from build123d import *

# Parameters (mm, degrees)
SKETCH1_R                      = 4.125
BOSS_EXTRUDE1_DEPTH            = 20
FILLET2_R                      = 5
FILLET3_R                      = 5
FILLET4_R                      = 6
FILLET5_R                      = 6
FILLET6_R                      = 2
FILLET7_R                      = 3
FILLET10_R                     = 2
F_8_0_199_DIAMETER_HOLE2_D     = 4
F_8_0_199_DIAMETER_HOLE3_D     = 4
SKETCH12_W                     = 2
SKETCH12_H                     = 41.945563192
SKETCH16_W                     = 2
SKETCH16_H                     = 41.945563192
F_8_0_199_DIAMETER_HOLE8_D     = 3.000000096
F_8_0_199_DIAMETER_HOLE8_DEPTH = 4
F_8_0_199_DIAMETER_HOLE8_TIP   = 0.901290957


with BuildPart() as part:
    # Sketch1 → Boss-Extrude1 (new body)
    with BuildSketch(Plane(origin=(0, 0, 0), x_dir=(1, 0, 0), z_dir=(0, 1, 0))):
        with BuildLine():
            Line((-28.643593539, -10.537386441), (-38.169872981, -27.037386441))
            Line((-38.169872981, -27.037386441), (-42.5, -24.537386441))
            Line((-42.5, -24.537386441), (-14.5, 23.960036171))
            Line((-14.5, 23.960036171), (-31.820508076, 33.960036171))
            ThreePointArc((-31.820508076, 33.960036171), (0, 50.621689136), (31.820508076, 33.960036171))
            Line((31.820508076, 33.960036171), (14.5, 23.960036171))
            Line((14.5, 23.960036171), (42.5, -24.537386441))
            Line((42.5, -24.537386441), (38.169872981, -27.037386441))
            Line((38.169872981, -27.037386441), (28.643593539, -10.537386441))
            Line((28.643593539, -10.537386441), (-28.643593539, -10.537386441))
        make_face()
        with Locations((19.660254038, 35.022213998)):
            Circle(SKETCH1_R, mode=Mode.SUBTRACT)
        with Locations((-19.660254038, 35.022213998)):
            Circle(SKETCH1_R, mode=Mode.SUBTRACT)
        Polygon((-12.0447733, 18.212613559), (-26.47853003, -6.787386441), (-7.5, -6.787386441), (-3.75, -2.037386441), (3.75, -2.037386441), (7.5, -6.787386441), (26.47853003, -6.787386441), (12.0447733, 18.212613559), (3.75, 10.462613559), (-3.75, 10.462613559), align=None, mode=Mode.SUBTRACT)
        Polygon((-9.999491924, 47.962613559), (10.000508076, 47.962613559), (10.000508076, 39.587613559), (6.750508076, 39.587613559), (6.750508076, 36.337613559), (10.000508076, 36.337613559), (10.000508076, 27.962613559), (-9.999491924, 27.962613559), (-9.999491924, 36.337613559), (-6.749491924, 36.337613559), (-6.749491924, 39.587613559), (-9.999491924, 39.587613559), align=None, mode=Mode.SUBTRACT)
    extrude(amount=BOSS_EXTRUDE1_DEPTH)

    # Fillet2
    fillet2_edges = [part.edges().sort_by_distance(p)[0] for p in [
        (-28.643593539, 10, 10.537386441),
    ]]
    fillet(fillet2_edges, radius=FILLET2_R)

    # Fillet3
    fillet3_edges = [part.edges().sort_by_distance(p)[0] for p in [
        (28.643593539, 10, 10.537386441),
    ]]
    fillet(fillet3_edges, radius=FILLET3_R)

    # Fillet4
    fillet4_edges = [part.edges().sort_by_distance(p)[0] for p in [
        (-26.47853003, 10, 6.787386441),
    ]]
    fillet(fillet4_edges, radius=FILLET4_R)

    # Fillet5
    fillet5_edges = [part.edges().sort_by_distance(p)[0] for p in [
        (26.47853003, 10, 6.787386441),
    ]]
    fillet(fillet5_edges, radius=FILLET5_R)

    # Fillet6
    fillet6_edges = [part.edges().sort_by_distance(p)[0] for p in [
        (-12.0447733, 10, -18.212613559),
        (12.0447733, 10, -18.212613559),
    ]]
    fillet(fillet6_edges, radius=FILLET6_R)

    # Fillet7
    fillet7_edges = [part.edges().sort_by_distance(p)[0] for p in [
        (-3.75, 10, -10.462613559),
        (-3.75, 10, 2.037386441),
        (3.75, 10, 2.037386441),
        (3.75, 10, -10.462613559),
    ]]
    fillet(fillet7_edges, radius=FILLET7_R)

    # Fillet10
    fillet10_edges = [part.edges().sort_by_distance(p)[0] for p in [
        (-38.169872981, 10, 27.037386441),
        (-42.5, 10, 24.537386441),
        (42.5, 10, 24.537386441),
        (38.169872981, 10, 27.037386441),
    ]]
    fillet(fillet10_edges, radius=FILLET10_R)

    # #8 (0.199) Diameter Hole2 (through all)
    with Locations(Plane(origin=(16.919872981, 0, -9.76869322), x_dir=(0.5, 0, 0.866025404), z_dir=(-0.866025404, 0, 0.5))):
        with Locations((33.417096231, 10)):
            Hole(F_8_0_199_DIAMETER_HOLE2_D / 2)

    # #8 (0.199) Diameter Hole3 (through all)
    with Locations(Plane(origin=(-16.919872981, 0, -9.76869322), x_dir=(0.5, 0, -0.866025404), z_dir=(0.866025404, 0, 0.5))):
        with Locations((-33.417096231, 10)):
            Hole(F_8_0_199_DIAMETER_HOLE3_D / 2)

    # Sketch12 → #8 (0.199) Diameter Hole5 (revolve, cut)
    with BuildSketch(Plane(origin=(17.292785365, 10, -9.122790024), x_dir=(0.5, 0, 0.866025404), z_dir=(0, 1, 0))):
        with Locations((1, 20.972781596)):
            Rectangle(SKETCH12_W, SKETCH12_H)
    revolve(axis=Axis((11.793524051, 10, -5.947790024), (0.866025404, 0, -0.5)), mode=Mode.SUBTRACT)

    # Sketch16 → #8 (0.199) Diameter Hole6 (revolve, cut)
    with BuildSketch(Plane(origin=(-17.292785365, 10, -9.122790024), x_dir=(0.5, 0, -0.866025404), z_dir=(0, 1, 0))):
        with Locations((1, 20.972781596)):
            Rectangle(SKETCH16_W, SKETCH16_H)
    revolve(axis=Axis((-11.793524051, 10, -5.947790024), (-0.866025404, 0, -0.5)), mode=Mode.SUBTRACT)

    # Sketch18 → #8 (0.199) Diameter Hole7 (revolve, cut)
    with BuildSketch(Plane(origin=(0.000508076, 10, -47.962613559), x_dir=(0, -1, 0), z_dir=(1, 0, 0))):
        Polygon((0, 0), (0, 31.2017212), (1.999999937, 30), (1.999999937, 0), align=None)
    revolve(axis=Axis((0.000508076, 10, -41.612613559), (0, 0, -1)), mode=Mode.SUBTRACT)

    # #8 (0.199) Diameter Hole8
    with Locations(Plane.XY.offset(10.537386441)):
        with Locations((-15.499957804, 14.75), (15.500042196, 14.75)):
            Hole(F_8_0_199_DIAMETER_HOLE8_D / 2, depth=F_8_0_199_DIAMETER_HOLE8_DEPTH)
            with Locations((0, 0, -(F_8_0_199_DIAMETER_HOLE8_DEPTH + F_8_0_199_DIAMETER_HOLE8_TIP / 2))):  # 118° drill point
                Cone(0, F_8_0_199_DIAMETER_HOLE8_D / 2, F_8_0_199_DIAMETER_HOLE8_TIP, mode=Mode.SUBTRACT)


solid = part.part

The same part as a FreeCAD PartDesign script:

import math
import FreeCAD as App
import Part
import Sketcher

V = App.Vector
Q = App.Units.Quantity


def edges_at(feature, points):
    """Names of the edges that pass closest to the given points."""
    edges = feature.Shape.Edges
    near = lambda p: min(range(len(edges)), key=lambda i: edges[i].distToShape(Part.Vertex(*p))[0])
    return sorted({f"Edge{near(p) + 1}" for p in points})


def add_polygon(sketch, points):
    """Adds a closed chain of lines whose ends are joined by coincident constraints."""
    first, n = sketch.GeometryCount, len(points)
    for a, b in zip(points, points[1:] + points[:1]):
        sketch.addGeometry(Part.LineSegment(App.Vector(*a, 0), App.Vector(*b, 0)), False)
    for i in range(n):
        sketch.addConstraint(Sketcher.Constraint("Coincident", first + i, 2, first + (i + 1) % n, 1))

doc = App.newDocument("Part")
body = doc.addObject("PartDesign::Body", "Body")

sketch1 = body.newObject("Sketcher::SketchObject", "Sketch")
sketch1.AttachmentSupport = (doc.getObject("XZ_Plane"), [""])
sketch1.MapMode = "FlatFace"
sketch1.addGeometry(Part.LineSegment(V(-38.2, 27, 0), V(-28.6, 10.5, 0)), False)
sketch1.addGeometry(Part.LineSegment(V(-28.6, 10.5, 0), V(28.6, 10.5, 0)), False)
sketch1.addGeometry(Part.LineSegment(V(28.6, 10.5, 0), V(38.2, 27, 0)), False)
sketch1.addGeometry(Part.LineSegment(V(38.2, 27, 0), V(42.5, 24.5, 0)), False)
sketch1.addGeometry(Part.LineSegment(V(42.5, 24.5, 0), V(14.5, -24, 0)), False)
sketch1.addGeometry(Part.LineSegment(V(14.5, -24, 0), V(31.8, -34, 0)), False)
sketch1.addGeometry(Part.ArcOfCircle(Part.Circle(V(0, -11.9, 0), V(0, 0, 1), 38.7), math.radians(-145), math.radians(-35)), False)
sketch1.addGeometry(Part.LineSegment(V(-31.8, -34, 0), V(-14.5, -24, 0)), False)
sketch1.addGeometry(Part.LineSegment(V(-14.5, -24, 0), V(-42.5, 24.5, 0)), False)
sketch1.addGeometry(Part.LineSegment(V(-42.5, 24.5, 0), V(-38.2, 27, 0)), False)
add_polygon(sketch1, [(-12, -18.2), (-3.8, -10.5), (3.8, -10.5), (12, -18.2), (26.5, 6.8), (7.5, 6.8), (3.8, 2), (-3.8, 2), (-7.5, 6.8), (-26.5, 6.8)])
sketch1.addGeometry(Part.Circle(V(19.7, -35, 0), V(0, 0, 1), 4.1), False)
add_polygon(sketch1, [(-10, -48), (10, -48), (10, -39.6), (6.8, -39.6), (6.8, -36.3), (10, -36.3), (10, -28), (-10, -28), (-10, -36.3), (-6.7, -36.3), (-6.7, -39.6), (-10, -39.6)])
sketch1.addGeometry(Part.Circle(V(-19.7, -35, 0), V(0, 0, 1), 4.1), False)
sketch1.addConstraint([
    Sketcher.Constraint("Coincident", 0, 2, 1, 1),
    Sketcher.Constraint("Coincident", 1, 2, 2, 1),
    Sketcher.Constraint("Coincident", 2, 2, 3, 1),
    Sketcher.Constraint("Coincident", 3, 2, 4, 1),
    Sketcher.Constraint("Coincident", 4, 2, 5, 1),
    Sketcher.Constraint("Coincident", 5, 2, 6, 2),
    Sketcher.Constraint("Coincident", 6, 1, 7, 1),
    Sketcher.Constraint("Coincident", 7, 2, 8, 1),
    Sketcher.Constraint("Coincident", 8, 2, 9, 1),
    Sketcher.Constraint("Coincident", 9, 2, 0, 1),
    Sketcher.Constraint("Horizontal", 1),
    Sketcher.Constraint("Horizontal", 11),
    Sketcher.Constraint("Horizontal", 14),
    Sketcher.Constraint("Horizontal", 16),
    Sketcher.Constraint("Horizontal", 18),
    Sketcher.Constraint("Horizontal", 21),
    Sketcher.Constraint("Vertical", 22),
    Sketcher.Constraint("Horizontal", 23),
    Sketcher.Constraint("Vertical", 24),
    Sketcher.Constraint("Horizontal", 25),
    Sketcher.Constraint("Vertical", 26),
    Sketcher.Constraint("Horizontal", 27),
    Sketcher.Constraint("Vertical", 28),
    Sketcher.Constraint("Horizontal", 29),
    Sketcher.Constraint("Vertical", 30),
    Sketcher.Constraint("Horizontal", 31),
    Sketcher.Constraint("Vertical", 32),
    Sketcher.Constraint("Equal", 20, 33),
    Sketcher.Constraint("Symmetric", 20, 3, 33, 3, -2),
    Sketcher.Constraint("Symmetric", 5, 2, 6, 1, -2),
    Sketcher.Constraint("Symmetric", 4, 2, 7, 2, -2),
    Sketcher.Constraint("Symmetric", 3, 2, 8, 2, -2),
    Sketcher.Constraint("Symmetric", 2, 2, 9, 2, -2),
    Sketcher.Constraint("Symmetric", 14, 2, 17, 2, -2),
    Sketcher.Constraint("Symmetric", 12, 2, 19, 2, -2),
    Sketcher.Constraint("Perpendicular", 2, 3),
    Sketcher.Constraint("Perpendicular", 3, 4),
    Sketcher.Constraint("Perpendicular", 4, 5),
    Sketcher.Constraint("Perpendicular", 0, 7),
    Sketcher.Constraint("Perpendicular", 5, 13),
    Sketcher.Constraint("Perpendicular", 9, 19),
    Sketcher.Constraint("Horizontal", 25, 2, 28, 2),
    Sketcher.Constraint("Horizontal", 23, 2, 30, 2),
    Sketcher.Constraint("Vertical", 11, 2, 15, 2),
    Sketcher.Constraint("Vertical", 10, 2, 16, 2),
    Sketcher.Constraint("Vertical", 22, 2, 25, 2),
    Sketcher.Constraint("Vertical", 28, 2, 31, 2),
    Sketcher.Constraint("Equal", 25, 29),
    Sketcher.Constraint("Equal", 31, 24),
    Sketcher.Constraint("Equal", 22, 26),
    Sketcher.Constraint("Equal", 10, 12),
    Sketcher.Constraint("Diameter", 20, Q("8.25 mm")),
    Sketcher.Constraint("DistanceX", 21, 1, 21, 2, Q("20 mm")),
    Sketcher.Constraint("Angle", 0, Q("-60 deg")),
    Sketcher.Constraint("Distance", 3, Q("5 mm")),
    Sketcher.Constraint("Distance", 4, Q("56 mm")),
    Sketcher.Constraint("Distance", 5, Q("20 mm")),
    Sketcher.Constraint("DistanceX", 11, 1, 11, 2, Q("7.5 mm")),
    Sketcher.Constraint("DistanceY", 1, 2, 3, 2, Q("14 mm")),
    Sketcher.Constraint("DistanceX", 7, 2, 4, 2, Q("29 mm")),
    Sketcher.Constraint("DistanceY", 10, 2, 0, 2, Q("21 mm")),
    Sketcher.Constraint("DistanceY", 12, 2, 13, 2, Q("25 mm")),
    Sketcher.Constraint("DistanceX", 17, 2, 14, 2, Q("15 mm")),
    Sketcher.Constraint("DistanceX", 23, 2, 23, 1, Q("3.25 mm")),
    Sketcher.Constraint("DistanceY", 11, 2, 15, 2, Q("12.5 mm")),
    Sketcher.Constraint("DistanceY", 27, 2, 10, 2, Q("17.5 mm")),
    Sketcher.Constraint("DistanceY", 22, 1, 22, 2, Q("8.375 mm")),
    Sketcher.Constraint("Radius", 6, Q("38.716309 mm")),
    Sketcher.Constraint("DistanceY", 12, 2, 11, 2, Q("7.75 mm")),
    Sketcher.Constraint("DistanceX", 21, 2, 5, 2, Q("21.82 mm")),
    Sketcher.Constraint("DistanceX", 14, 2, 14, 1, Q("18.97853 mm")),
    Sketcher.Constraint("DistanceY", 33, 3, 0, 2, Q("45.5596 mm")),
    Sketcher.Constraint("DistanceY", 6, 3, -1, 1, Q("11.90538 mm")),
    Sketcher.Constraint("DistanceX", 33, 3, 20, 3, Q("39.320508 mm")),
])
pad1 = body.newObject("PartDesign::Pad", "Pad")
pad1.Profile = sketch1
pad1.Length = 20
pad1.Reversed = True
doc.recompute()

fillet = body.newObject("PartDesign::Fillet", "Fillet")
fillet.Base = (pad1, edges_at(pad1, [(-28.644, 10, 10.537)]))
fillet.Radius = 5
doc.recompute()

fillet2 = body.newObject("PartDesign::Fillet", "Fillet001")
fillet2.Base = (fillet, edges_at(fillet, [(28.644, 10, 10.537)]))
fillet2.Radius = 5
doc.recompute()

fillet3 = body.newObject("PartDesign::Fillet", "Fillet002")
fillet3.Base = (fillet2, edges_at(fillet2, [(-26.479, 10, 6.787)]))
fillet3.Radius = 6
doc.recompute()

fillet4 = body.newObject("PartDesign::Fillet", "Fillet003")
fillet4.Base = (fillet3, edges_at(fillet3, [(26.479, 10, 6.787)]))
fillet4.Radius = 6
doc.recompute()

fillet5 = body.newObject("PartDesign::Fillet", "Fillet004")
fillet5.Base = (fillet4, edges_at(fillet4, [(-12.045, 10, -18.213), (12.045, 10, -18.213)]))
fillet5.Radius = 2
doc.recompute()

fillet6 = body.newObject("PartDesign::Fillet", "Fillet005")
fillet6.Base = (fillet5, edges_at(fillet5, [
    (-3.75, 10, -10.463),
    (-3.75, 10, 2.037),
    (3.75, 10, 2.037),
    (3.75, 10, -10.463),
]))
fillet6.Radius = 3
doc.recompute()

fillet7 = body.newObject("PartDesign::Fillet", "Fillet006")
fillet7.Base = (fillet6, edges_at(fillet6, [
    (-38.17, 10, 27.037),
    (-42.5, 10, 24.537),
    (42.5, 10, 24.537),
    (38.17, 10, 27.037),
]))
fillet7.Radius = 2

sketch2 = body.newObject("Sketcher::SketchObject", "Sketch001")
sketch2.Placement = App.Placement(V(16.919873, 0, -9.768693), App.Rotation(V(0.5, 0, 0.866025404), V(0, 1, 0), V(-0.866025404, 0, 0.5), "ZXY"))
sketch2.addGeometry(Part.Circle(V(33.4, 10, 0), V(0, 0, 1), 2), False)
sketch2.addConstraint([
    Sketcher.Constraint("Diameter", 0, Q("4 mm")),
    Sketcher.Constraint("DistanceY", -1, 1, 0, 3, Q("10 mm")),
    Sketcher.Constraint("DistanceX", -1, 1, 0, 3, Q("33.417096 mm")),
])
doc.recompute()
hole = body.newObject("PartDesign::Hole", "Hole")
hole.Profile = sketch2
hole.ThreadType = "None"
hole.Diameter = 4
hole.DepthType = "ThroughAll"

sketch3 = body.newObject("Sketcher::SketchObject", "Sketch002")
sketch3.Placement = App.Placement(V(-16.919873, 0, -9.768693), App.Rotation(V(0.5, 0, -0.866025404), V(0, 1, 0), V(0.866025404, 0, 0.5), "ZXY"))
sketch3.addGeometry(Part.Circle(V(-33.4, 10, 0), V(0, 0, 1), 2), False)
sketch3.addConstraint([
    Sketcher.Constraint("Diameter", 0, Q("4 mm")),
    Sketcher.Constraint("DistanceY", -1, 1, 0, 3, Q("10 mm")),
    Sketcher.Constraint("DistanceX", 0, 3, -1, 1, Q("33.417096 mm")),
])
doc.recompute()
hole2 = body.newObject("PartDesign::Hole", "Hole001")
hole2.Profile = sketch3
hole2.ThreadType = "None"
hole2.Diameter = 4
hole2.DepthType = "ThroughAll"

sketch4 = body.newObject("Sketcher::SketchObject", "Sketch003")
sketch4.AttachmentSupport = (doc.getObject("XZ_Plane"), [""])
sketch4.MapMode = "FlatFace"
sketch4.AttachmentOffset = App.Placement(V(0, 0, -10), App.Rotation())
add_polygon(sketch4, [(53.6, -30.1), (17.3, -9.1), (18.3, -7.4), (54.6, -28.4)])
sketch4.addGeometry(Part.LineSegment(V(17.3, -9.1, 0), V(53.6, -30.1, 0)), True)
sketch4.addConstraint([
    Sketcher.Constraint("Coincident", 4, 1, 0, 2),
    Sketcher.Constraint("Coincident", 4, 2, 3, 2),
    Sketcher.Constraint("Perpendicular", 0, 1),
    Sketcher.Constraint("Perpendicular", 1, 2),
    Sketcher.Constraint("Perpendicular", 2, 3),
    Sketcher.Constraint("Angle", 0, Q("150 deg")),
    Sketcher.Constraint("Distance", 1, Q("2 mm")),
    Sketcher.Constraint("DistanceY", 0, 2, -1, 1, Q("9.12279 mm")),
    Sketcher.Constraint("DistanceX", -1, 1, 2, 2, Q("54.618709 mm")),
    Sketcher.Constraint("DistanceY", 2, 2, -1, 1, Q("28.363521 mm")),
])
groove = body.newObject("PartDesign::Groove", "Groove")
groove.Profile = sketch4
groove.ReferenceAxis = (sketch4, ["Axis0"])
groove.Angle = 360

sketch5 = body.newObject("Sketcher::SketchObject", "Sketch004")
sketch5.AttachmentSupport = (doc.getObject("XZ_Plane"), [""])
sketch5.MapMode = "FlatFace"
sketch5.AttachmentOffset = App.Placement(V(0, 0, -10), App.Rotation())
add_polygon(sketch5, [(-53.6, -30.1), (-17.3, -9.1), (-16.3, -10.9), (-52.6, -31.8)])
sketch5.addGeometry(Part.LineSegment(V(-17.3, -9.1, 0), V(-53.6, -30.1, 0)), True)
sketch5.addConstraint([
    Sketcher.Constraint("Coincident", 4, 1, 0, 2),
    Sketcher.Constraint("Coincident", 4, 2, 3, 2),
    Sketcher.Constraint("Perpendicular", 0, 1),
    Sketcher.Constraint("Perpendicular", 1, 2),
    Sketcher.Constraint("Perpendicular", 2, 3),
    Sketcher.Constraint("Angle", 0, Q("30 deg")),
    Sketcher.Constraint("Distance", 1, Q("2 mm")),
    Sketcher.Constraint("DistanceY", 0, 2, -1, 1, Q("9.12279 mm")),
    Sketcher.Constraint("DistanceX", 2, 2, -1, 1, Q("52.618709 mm")),
    Sketcher.Constraint("DistanceY", 3, 2, -1, 1, Q("30.095572 mm")),
])
groove2 = body.newObject("PartDesign::Groove", "Groove001")
groove2.Profile = sketch5
groove2.ReferenceAxis = (sketch5, ["Axis0"])
groove2.Angle = 360

sketch6 = body.newObject("Sketcher::SketchObject", "Sketch005")
sketch6.AttachmentSupport = (doc.getObject("YZ_Plane"), [""])
sketch6.MapMode = "FlatFace"
sketch6.AttachmentOffset = App.Placement(V(0, 0, 0.000508), App.Rotation())
add_polygon(sketch6, [(10, -79.2), (10, -48), (8, -48), (8, -78)])
sketch6.addGeometry(Part.LineSegment(V(10, -48, 0), V(10, -79.2, 0)), True)
sketch6.addConstraint([
    Sketcher.Constraint("Vertical", 0),
    Sketcher.Constraint("Horizontal", 1),
    Sketcher.Constraint("Vertical", 2),
    Sketcher.Constraint("Vertical", 4),
    Sketcher.Constraint("Coincident", 4, 1, 0, 2),
    Sketcher.Constraint("Equal", 0, 4),
    Sketcher.Constraint("DistanceX", 1, 2, 1, 1, Q("2 mm")),
    Sketcher.Constraint("DistanceY", 2, 2, 2, 1, Q("30 mm")),
    Sketcher.Constraint("Angle", 3, Q("-31 deg")),
    Sketcher.Constraint("DistanceX", -1, 1, 0, 2, Q("10 mm")),
    Sketcher.Constraint("DistanceY", 0, 2, -1, 1, Q("47.962614 mm")),
])
groove3 = body.newObject("PartDesign::Groove", "Groove002")
groove3.Profile = sketch6
groove3.ReferenceAxis = (sketch6, ["Axis0"])
groove3.Angle = 360

sketch7 = body.newObject("Sketcher::SketchObject", "Sketch006")
sketch7.AttachmentSupport = (doc.getObject("XY_Plane"), [""])
sketch7.MapMode = "FlatFace"
sketch7.AttachmentOffset = App.Placement(V(0, 0, 10.537386), App.Rotation())
sketch7.addGeometry([
    Part.Circle(V(-15.5, 14.8, 0), V(0, 0, 1), 1.5),
    Part.Circle(V(15.5, 14.8, 0), V(0, 0, 1), 1.5),
], False)
sketch7.addConstraint([
    Sketcher.Constraint("Equal", 0, 1),
    Sketcher.Constraint("Horizontal", 0, 3, 1, 3),
    Sketcher.Constraint("Diameter", 0, Q("3 mm")),
    Sketcher.Constraint("DistanceX", 0, 3, 1, 3, Q("31 mm")),
    Sketcher.Constraint("DistanceY", -1, 1, 0, 3, Q("14.75 mm")),
    Sketcher.Constraint("DistanceX", 0, 3, -1, 1, Q("15.499958 mm")),
])
doc.recompute()
hole3 = body.newObject("PartDesign::Hole", "Hole002")
hole3.Profile = sketch7
hole3.ThreadType = "None"
hole3.Diameter = 3
hole3.DepthType = "Dimension"
hole3.Depth = 4
hole3.DrillPoint = "Angled"
hole3.DrillPointAngle = 118

doc.recompute()
